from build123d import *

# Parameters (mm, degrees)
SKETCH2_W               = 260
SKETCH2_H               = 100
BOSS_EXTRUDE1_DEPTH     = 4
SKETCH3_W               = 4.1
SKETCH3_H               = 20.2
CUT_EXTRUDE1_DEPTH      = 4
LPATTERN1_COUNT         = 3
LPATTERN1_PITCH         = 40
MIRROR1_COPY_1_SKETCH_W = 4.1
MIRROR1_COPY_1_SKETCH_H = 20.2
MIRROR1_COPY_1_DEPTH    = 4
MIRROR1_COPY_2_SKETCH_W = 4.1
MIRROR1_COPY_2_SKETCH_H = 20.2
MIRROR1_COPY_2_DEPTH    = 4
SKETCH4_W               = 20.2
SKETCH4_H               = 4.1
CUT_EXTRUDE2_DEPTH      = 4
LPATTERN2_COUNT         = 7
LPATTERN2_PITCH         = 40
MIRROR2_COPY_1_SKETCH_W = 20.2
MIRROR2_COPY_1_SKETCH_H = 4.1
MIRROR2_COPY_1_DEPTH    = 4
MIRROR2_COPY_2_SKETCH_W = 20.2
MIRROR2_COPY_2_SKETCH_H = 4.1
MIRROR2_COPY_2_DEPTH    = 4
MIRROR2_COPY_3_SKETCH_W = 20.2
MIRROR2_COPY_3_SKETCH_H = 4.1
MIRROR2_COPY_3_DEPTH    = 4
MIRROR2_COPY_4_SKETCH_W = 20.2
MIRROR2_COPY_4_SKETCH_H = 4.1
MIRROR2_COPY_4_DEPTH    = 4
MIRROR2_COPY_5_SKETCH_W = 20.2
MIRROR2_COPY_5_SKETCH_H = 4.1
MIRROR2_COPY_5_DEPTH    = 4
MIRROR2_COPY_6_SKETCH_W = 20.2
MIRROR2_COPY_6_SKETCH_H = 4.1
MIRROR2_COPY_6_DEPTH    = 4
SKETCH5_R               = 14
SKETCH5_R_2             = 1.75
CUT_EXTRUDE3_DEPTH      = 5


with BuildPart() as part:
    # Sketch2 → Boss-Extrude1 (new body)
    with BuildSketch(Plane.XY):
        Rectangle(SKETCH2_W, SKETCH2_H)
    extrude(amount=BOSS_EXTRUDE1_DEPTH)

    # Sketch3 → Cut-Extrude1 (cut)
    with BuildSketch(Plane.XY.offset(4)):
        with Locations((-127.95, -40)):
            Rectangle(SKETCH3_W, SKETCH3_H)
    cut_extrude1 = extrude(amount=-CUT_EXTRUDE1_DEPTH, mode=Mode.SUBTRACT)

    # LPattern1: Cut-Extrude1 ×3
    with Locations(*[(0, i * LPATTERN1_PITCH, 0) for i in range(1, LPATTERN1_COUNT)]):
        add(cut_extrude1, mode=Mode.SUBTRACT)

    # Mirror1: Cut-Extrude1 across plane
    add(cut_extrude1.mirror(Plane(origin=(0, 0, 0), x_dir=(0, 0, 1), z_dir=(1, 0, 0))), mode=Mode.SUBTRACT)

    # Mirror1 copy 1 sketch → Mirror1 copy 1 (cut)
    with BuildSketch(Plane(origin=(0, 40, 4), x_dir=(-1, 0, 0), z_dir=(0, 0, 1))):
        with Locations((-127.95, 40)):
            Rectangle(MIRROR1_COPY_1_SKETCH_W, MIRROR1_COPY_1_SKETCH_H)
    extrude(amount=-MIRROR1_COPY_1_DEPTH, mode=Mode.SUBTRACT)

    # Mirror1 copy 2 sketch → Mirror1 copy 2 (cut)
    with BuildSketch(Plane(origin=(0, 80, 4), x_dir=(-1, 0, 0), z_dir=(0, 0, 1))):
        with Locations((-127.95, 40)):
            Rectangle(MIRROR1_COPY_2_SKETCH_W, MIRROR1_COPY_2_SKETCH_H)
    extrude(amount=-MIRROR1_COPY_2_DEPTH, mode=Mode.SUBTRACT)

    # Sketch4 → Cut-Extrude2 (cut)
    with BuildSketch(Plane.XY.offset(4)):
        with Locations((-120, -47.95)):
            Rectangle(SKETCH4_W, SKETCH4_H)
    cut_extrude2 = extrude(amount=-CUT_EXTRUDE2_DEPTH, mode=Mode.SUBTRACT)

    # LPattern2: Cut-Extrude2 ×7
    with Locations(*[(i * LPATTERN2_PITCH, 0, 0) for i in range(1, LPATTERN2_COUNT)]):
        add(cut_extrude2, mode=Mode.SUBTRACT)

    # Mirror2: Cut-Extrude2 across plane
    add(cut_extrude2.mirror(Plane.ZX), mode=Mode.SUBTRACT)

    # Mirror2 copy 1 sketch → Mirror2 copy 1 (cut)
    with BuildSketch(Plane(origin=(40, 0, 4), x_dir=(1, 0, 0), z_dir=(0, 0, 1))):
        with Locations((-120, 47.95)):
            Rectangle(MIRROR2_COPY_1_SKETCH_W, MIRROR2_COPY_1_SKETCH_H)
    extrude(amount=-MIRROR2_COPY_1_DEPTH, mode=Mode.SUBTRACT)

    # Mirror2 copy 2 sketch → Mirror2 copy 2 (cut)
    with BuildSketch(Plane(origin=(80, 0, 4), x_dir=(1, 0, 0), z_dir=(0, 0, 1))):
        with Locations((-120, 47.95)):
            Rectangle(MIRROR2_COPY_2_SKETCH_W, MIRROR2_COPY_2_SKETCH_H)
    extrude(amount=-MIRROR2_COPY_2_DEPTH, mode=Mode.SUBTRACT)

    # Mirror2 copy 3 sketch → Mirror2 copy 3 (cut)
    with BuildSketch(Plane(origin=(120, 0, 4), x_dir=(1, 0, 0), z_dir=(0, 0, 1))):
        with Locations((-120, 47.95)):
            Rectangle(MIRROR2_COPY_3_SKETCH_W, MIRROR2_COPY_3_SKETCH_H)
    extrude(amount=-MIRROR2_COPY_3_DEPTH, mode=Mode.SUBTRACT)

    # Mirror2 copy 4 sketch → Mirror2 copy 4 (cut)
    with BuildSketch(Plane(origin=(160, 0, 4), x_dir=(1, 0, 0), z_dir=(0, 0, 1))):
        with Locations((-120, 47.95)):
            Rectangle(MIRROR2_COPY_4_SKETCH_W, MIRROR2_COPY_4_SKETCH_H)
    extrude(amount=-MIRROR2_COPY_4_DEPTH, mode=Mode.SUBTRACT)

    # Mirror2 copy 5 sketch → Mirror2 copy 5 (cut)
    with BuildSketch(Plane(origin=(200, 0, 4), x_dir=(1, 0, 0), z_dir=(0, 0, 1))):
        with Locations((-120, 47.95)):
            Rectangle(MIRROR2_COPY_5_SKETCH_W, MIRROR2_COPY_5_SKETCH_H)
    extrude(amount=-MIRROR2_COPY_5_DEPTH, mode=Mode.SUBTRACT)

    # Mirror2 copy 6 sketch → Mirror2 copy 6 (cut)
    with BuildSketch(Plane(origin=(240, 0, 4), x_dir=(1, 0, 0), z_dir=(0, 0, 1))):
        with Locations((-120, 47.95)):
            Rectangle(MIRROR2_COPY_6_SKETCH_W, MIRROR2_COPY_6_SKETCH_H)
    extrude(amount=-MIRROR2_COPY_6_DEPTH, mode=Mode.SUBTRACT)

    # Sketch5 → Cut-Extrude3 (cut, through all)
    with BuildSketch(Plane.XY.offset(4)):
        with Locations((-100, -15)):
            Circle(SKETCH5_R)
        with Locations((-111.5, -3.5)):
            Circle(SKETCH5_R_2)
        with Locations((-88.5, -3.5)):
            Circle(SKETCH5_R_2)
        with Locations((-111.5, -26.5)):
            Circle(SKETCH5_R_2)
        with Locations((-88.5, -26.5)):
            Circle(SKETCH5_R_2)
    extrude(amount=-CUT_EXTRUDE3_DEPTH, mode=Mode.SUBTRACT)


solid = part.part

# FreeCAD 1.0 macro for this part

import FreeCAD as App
import Part
import Sketcher
Q = App.Units.Quantity


def add_polygon(sketch, points):
    """Adds a closed chain of lines whose ends are joined by coincident constraints."""
    first, n = sketch.GeometryCount, len(points)
    for a, b in zip(points, points[1:] + points[:1]):
        sketch.addGeometry(Part.LineSegment(App.Vector(*a, 0), App.Vector(*b, 0)), False)
    for i in range(n):
        sketch.addConstraint(Sketcher.Constraint("Coincident", first + i, 2, first + (i + 1) % n, 1))

doc = App.newDocument("Part")
body = doc.addObject("PartDesign::Body", "Body")

sketch1 = doc.addObject("Sketcher::SketchObject", "Sketch")
body.addObject(sketch1)
sketch1.AttachmentSupport = (doc.XY_Plane, [""])
sketch1.MapMode = "FlatFace"
add_polygon(sketch1, [(-130, 50), (-130, -50), (130, -50), (130, 50)])
sketch1.addConstraint([
    Sketcher.Constraint("Vertical", 0),
    Sketcher.Constraint("Horizontal", 1),
    Sketcher.Constraint("Vertical", 2),
    Sketcher.Constraint("Horizontal", 3),
    Sketcher.Constraint("Symmetric", 0, 2, 2, 2, -1, 1),
    Sketcher.Constraint("DistanceX", 1, 1, 1, 2, Q("260 mm")),
    Sketcher.Constraint("DistanceY", 0, 2, 0, 1, Q("100 mm")),
])
pad1 = doc.addObject("PartDesign::Pad", "Pad")
body.addObject(pad1)
pad1.Profile = sketch1
pad1.Length = 4

sketch2 = doc.addObject("Sketcher::SketchObject", "Sketch001")
body.addObject(sketch2)
sketch2.AttachmentSupport = (doc.XY_Plane, [""])
sketch2.MapMode = "FlatFace"
sketch2.AttachmentOffset = App.Placement(App.Vector(0, 0, 4), App.Rotation())
add_polygon(sketch2, [(-130, -29.9), (-130, -50.1), (-125.9, -50.1), (-125.9, -29.9)])
sketch2.addConstraint([
    Sketcher.Constraint("Vertical", 0),
    Sketcher.Constraint("Horizontal", 1),
    Sketcher.Constraint("Vertical", 2),
    Sketcher.Constraint("Horizontal", 3),
    Sketcher.Constraint("DistanceX", 1, 1, 1, 2, Q("4.1 mm")),
    Sketcher.Constraint("DistanceY", 0, 2, 0, 1, Q("20.2 mm")),
    Sketcher.Constraint("DistanceX", 0, 2, -1, 1, Q("130 mm")),
    Sketcher.Constraint("DistanceY", 0, 2, -1, 1, Q("50.1 mm")),
])
pocket1 = doc.addObject("PartDesign::Pocket", "Pocket")
body.addObject(pocket1)
pocket1.Profile = sketch2
pocket1.Length = 4
doc.recompute()

linearpattern = doc.addObject("PartDesign::LinearPattern", "LinearPattern")
body.addObject(linearpattern)
linearpattern.Originals = [pocket1]
linearpattern.Direction = (doc.Y_Axis, [""])
linearpattern.Mode = "offset"
linearpattern.Offset = 40
linearpattern.Occurrences = 3
body.Tip = linearpattern
doc.recompute()

mirrored = doc.addObject("PartDesign::Mirrored", "Mirrored")
body.addObject(mirrored)
mirrored.Originals = [pocket1]
mirrored.MirrorPlane = (doc.YZ_Plane, [""])
body.Tip = mirrored

sketch3 = doc.addObject("Sketcher::SketchObject", "Sketch002")
body.addObject(sketch3)
sketch3.AttachmentSupport = (doc.XY_Plane, [""])
sketch3.MapMode = "FlatFace"
sketch3.AttachmentOffset = App.Placement(App.Vector(0, 0, 4), App.Rotation())
add_polygon(sketch3, [(130, -10.1), (130, 10.1), (125.9, 10.1), (125.9, -10.1)])
sketch3.addConstraint([
    Sketcher.Constraint("Vertical", 0),
    Sketcher.Constraint("Horizontal", 1),
    Sketcher.Constraint("Vertical", 2),
    Sketcher.Constraint("Horizontal", 3),
    Sketcher.Constraint("DistanceX", 1, 2, 1, 1, Q("4.1 mm")),
    Sketcher.Constraint("DistanceY", 0, 1, 0, 2, Q("20.2 mm")),
    Sketcher.Constraint("DistanceX", -1, 1, 0, 2, Q("130 mm")),
    Sketcher.Constraint("DistanceY", -1, 1, 0, 2, Q("10.1 mm")),
])
pocket2 = doc.addObject("PartDesign::Pocket", "Pocket001")
body.addObject(pocket2)
pocket2.Profile = sketch3
pocket2.Length = 4

sketch4 = doc.addObject("Sketcher::SketchObject", "Sketch003")
body.addObject(sketch4)
sketch4.AttachmentSupport = (doc.XY_Plane, [""])
sketch4.MapMode = "FlatFace"
sketch4.AttachmentOffset = App.Placement(App.Vector(0, 0, 4), App.Rotation())
add_polygon(sketch4, [(130, 29.9), (130, 50.1), (125.9, 50.1), (125.9, 29.9)])
sketch4.addConstraint([
    Sketcher.Constraint("Vertical", 0),
    Sketcher.Constraint("Horizontal", 1),
    Sketcher.Constraint("Vertical", 2),
    Sketcher.Constraint("Horizontal", 3),
    Sketcher.Constraint("DistanceX", 1, 2, 1, 1, Q("4.1 mm")),
    Sketcher.Constraint("DistanceY", 0, 1, 0, 2, Q("20.2 mm")),
    Sketcher.Constraint("DistanceX", -1, 1, 0, 2, Q("130 mm")),
    Sketcher.Constraint("DistanceY", -1, 1, 0, 2, Q("50.1 mm")),
])
pocket3 = doc.addObject("PartDesign::Pocket", "Pocket002")
body.addObject(pocket3)
pocket3.Profile = sketch4
pocket3.Length = 4

sketch5 = doc.addObject("Sketcher::SketchObject", "Sketch004")
body.addObject(sketch5)
sketch5.AttachmentSupport = (doc.XY_Plane, [""])
sketch5.MapMode = "FlatFace"
sketch5.AttachmentOffset = App.Placement(App.Vector(0, 0, 4), App.Rotation())
add_polygon(sketch5, [(-130.1, -45.9), (-130.1, -50), (-109.9, -50), (-109.9, -45.9)])
sketch5.addConstraint([
    Sketcher.Constraint("Vertical", 0),
    Sketcher.Constraint("Horizontal", 1),
    Sketcher.Constraint("Vertical", 2),
    Sketcher.Constraint("Horizontal", 3),
    Sketcher.Constraint("DistanceX", 1, 1, 1, 2, Q("20.2 mm")),
    Sketcher.Constraint("DistanceY", 0, 2, 0, 1, Q("4.1 mm")),
    Sketcher.Constraint("DistanceY", 0, 2, -1, 1, Q("50 mm")),
    Sketcher.Constraint("DistanceX", 0, 2, -1, 1, Q("130.1 mm")),
])
pocket4 = doc.addObject("PartDesign::Pocket", "Pocket003")
body.addObject(pocket4)
pocket4.Profile = sketch5
pocket4.Length = 4
doc.recompute()

linearpattern2 = doc.addObject("PartDesign::LinearPattern", "LinearPattern001")
body.addObject(linearpattern2)
linearpattern2.Originals = [pocket4]
linearpattern2.Direction = (doc.X_Axis, [""])
linearpattern2.Mode = "offset"
linearpattern2.Offset = 40
linearpattern2.Occurrences = 7
body.Tip = linearpattern2
doc.recompute()

mirrored2 = doc.addObject("PartDesign::Mirrored", "Mirrored001")
body.addObject(mirrored2)
mirrored2.Originals = [pocket4]
mirrored2.MirrorPlane = (doc.XZ_Plane, [""])
body.Tip = mirrored2

sketch6 = doc.addObject("Sketcher::SketchObject", "Sketch005")
body.addObject(sketch6)
sketch6.AttachmentSupport = (doc.XY_Plane, [""])
sketch6.MapMode = "FlatFace"
sketch6.AttachmentOffset = App.Placement(App.Vector(0, 0, 4), App.Rotation())
add_polygon(sketch6, [(-90.1, 50), (-90.1, 45.9), (-69.9, 45.9), (-69.9, 50)])
sketch6.addConstraint([
    Sketcher.Constraint("Vertical", 0),
    Sketcher.Constraint("Horizontal", 1),
    Sketcher.Constraint("Vertical", 2),
    Sketcher.Constraint("Horizontal", 3),
    Sketcher.Constraint("DistanceX", 1, 1, 1, 2, Q("20.2 mm")),
    Sketcher.Constraint("DistanceY", 0, 2, 0, 1, Q("4.1 mm")),
    Sketcher.Constraint("DistanceY", -1, 1, 2, 2, Q("50 mm")),
    Sketcher.Constraint("DistanceX", 0, 2, -1, 1, Q("90.1 mm")),
])
pocket5 = doc.addObject("PartDesign::Pocket", "Pocket004")
body.addObject(pocket5)
pocket5.Profile = sketch6
pocket5.Length = 4

sketch7 = doc.addObject("Sketcher::SketchObject", "Sketch006")
body.addObject(sketch7)
sketch7.AttachmentSupport = (doc.XY_Plane, [""])
sketch7.MapMode = "FlatFace"
sketch7.AttachmentOffset = App.Placement(App.Vector(0, 0, 4), App.Rotation())
add_polygon(sketch7, [(-50.1, 50), (-50.1, 45.9), (-29.9, 45.9), (-29.9, 50)])
sketch7.addConstraint([
    Sketcher.Constraint("Vertical", 0),
    Sketcher.Constraint("Horizontal", 1),
    Sketcher.Constraint("Vertical", 2),
    Sketcher.Constraint("Horizontal", 3),
    Sketcher.Constraint("DistanceX", 1, 1, 1, 2, Q("20.2 mm")),
    Sketcher.Constraint("DistanceY", 0, 2, 0, 1, Q("4.1 mm")),
    Sketcher.Constraint("DistanceY", -1, 1, 2, 2, Q("50 mm")),
    Sketcher.Constraint("DistanceX", 0, 2, -1, 1, Q("50.1 mm")),
])
pocket6 = doc.addObject("PartDesign::Pocket", "Pocket005")
body.addObject(pocket6)
pocket6.Profile = sketch7
pocket6.Length = 4

sketch8 = doc.addObject("Sketcher::SketchObject", "Sketch007")
body.addObject(sketch8)
sketch8.AttachmentSupport = (doc.XY_Plane, [""])
sketch8.MapMode = "FlatFace"
sketch8.AttachmentOffset = App.Placement(App.Vector(0, 0, 4), App.Rotation())
add_polygon(sketch8, [(-10.1, 50), (-10.1, 45.9), (10.1, 45.9), (10.1, 50)])
sketch8.addConstraint([
    Sketcher.Constraint("Vertical", 0),
    Sketcher.Constraint("Horizontal", 1),
    Sketcher.Constraint("Vertical", 2),
    Sketcher.Constraint("Horizontal", 3),
    Sketcher.Constraint("DistanceX", 1, 1, 1, 2, Q("20.2 mm")),
    Sketcher.Constraint("DistanceY", 0, 2, 0, 1, Q("4.1 mm")),
    Sketcher.Constraint("DistanceY", -1, 1, 2, 2, Q("50 mm")),
    Sketcher.Constraint("DistanceX", 0, 2, -1, 1, Q("10.1 mm")),
])
pocket7 = doc.addObject("PartDesign::Pocket", "Pocket006")
body.addObject(pocket7)
pocket7.Profile = sketch8
pocket7.Length = 4

sketch9 = doc.addObject("Sketcher::SketchObject", "Sketch008")
body.addObject(sketch9)
sketch9.AttachmentSupport = (doc.XY_Plane, [""])
sketch9.MapMode = "FlatFace"
sketch9.AttachmentOffset = App.Placement(App.Vector(0, 0, 4), App.Rotation())
add_polygon(sketch9, [(29.9, 50), (29.9, 45.9), (50.1, 45.9), (50.1, 50)])
sketch9.addConstraint([
    Sketcher.Constraint("Vertical", 0),
    Sketcher.Constraint("Horizontal", 1),
    Sketcher.Constraint("Vertical", 2),
    Sketcher.Constraint("Horizontal", 3),
    Sketcher.Constraint("DistanceX", 1, 1, 1, 2, Q("20.2 mm")),
    Sketcher.Constraint("DistanceY", 0, 2, 0, 1, Q("4.1 mm")),
    Sketcher.Constraint("DistanceY", -1, 1, 2, 2, Q("50 mm")),
    Sketcher.Constraint("DistanceX", -1, 1, 0, 2, Q("29.9 mm")),
])
pocket8 = doc.addObject("PartDesign::Pocket", "Pocket007")
body.addObject(pocket8)
pocket8.Profile = sketch9
pocket8.Length = 4

sketch10 = doc.addObject("Sketcher::SketchObject", "Sketch009")
body.addObject(sketch10)
sketch10.AttachmentSupport = (doc.XY_Plane, [""])
sketch10.MapMode = "FlatFace"
sketch10.AttachmentOffset = App.Placement(App.Vector(0, 0, 4), App.Rotation())
add_polygon(sketch10, [(69.9, 50), (69.9, 45.9), (90.1, 45.9), (90.1, 50)])
sketch10.addConstraint([
    Sketcher.Constraint("Vertical", 0),
    Sketcher.Constraint("Horizontal", 1),
    Sketcher.Constraint("Vertical", 2),
    Sketcher.Constraint("Horizontal", 3),
    Sketcher.Constraint("DistanceX", 1, 1, 1, 2, Q("20.2 mm")),
    Sketcher.Constraint("DistanceY", 0, 2, 0, 1, Q("4.1 mm")),
    Sketcher.Constraint("DistanceY", -1, 1, 2, 2, Q("50 mm")),
    Sketcher.Constraint("DistanceX", -1, 1, 0, 2, Q("69.9 mm")),
])
pocket9 = doc.addObject("PartDesign::Pocket", "Pocket008")
body.addObject(pocket9)
pocket9.Profile = sketch10
pocket9.Length = 4

sketch11 = doc.addObject("Sketcher::SketchObject", "Sketch010")
body.addObject(sketch11)
sketch11.AttachmentSupport = (doc.XY_Plane, [""])
sketch11.MapMode = "FlatFace"
sketch11.AttachmentOffset = App.Placement(App.Vector(0, 0, 4), App.Rotation())
add_polygon(sketch11, [(109.9, 50), (109.9, 45.9), (130.1, 45.9), (130.1, 50)])
sketch11.addConstraint([
    Sketcher.Constraint("Vertical", 0),
    Sketcher.Constraint("Horizontal", 1),
    Sketcher.Constraint("Vertical", 2),
    Sketcher.Constraint("Horizontal", 3),
    Sketcher.Constraint("DistanceX", 1, 1, 1, 2, Q("20.2 mm")),
    Sketcher.Constraint("DistanceY", 0, 2, 0, 1, Q("4.1 mm")),
    Sketcher.Constraint("DistanceY", -1, 1, 2, 2, Q("50 mm")),
    Sketcher.Constraint("DistanceX", -1, 1, 0, 2, Q("109.9 mm")),
])
pocket10 = doc.addObject("PartDesign::Pocket", "Pocket009")
body.addObject(pocket10)
pocket10.Profile = sketch11
pocket10.Length = 4

sketch12 = doc.addObject("Sketcher::SketchObject", "Sketch011")
body.addObject(sketch12)
sketch12.AttachmentSupport = (doc.XY_Plane, [""])
sketch12.MapMode = "FlatFace"
sketch12.AttachmentOffset = App.Placement(App.Vector(0, 0, 4), App.Rotation())
sketch12.addGeometry([
    Part.Circle(App.Vector(-100, -15, 0), App.Vector(0, 0, 1), 14),
    Part.Circle(App.Vector(-111.5, -3.5, 0), App.Vector(0, 0, 1), 1.8),
    Part.Circle(App.Vector(-88.5, -3.5, 0), App.Vector(0, 0, 1), 1.8),
    Part.Circle(App.Vector(-111.5, -26.5, 0), App.Vector(0, 0, 1), 1.8),
    Part.Circle(App.Vector(-88.5, -26.5, 0), App.Vector(0, 0, 1), 1.8),
], False)
sketch12.addConstraint([
    Sketcher.Constraint("Equal", 1, 2),
    Sketcher.Constraint("Equal", 2, 3),
    Sketcher.Constraint("Equal", 3, 4),
    Sketcher.Constraint("Horizontal", 1, 3, 2, 3),
    Sketcher.Constraint("Horizontal", 3, 3, 4, 3),
    Sketcher.Constraint("Vertical", 1, 3, 3, 3),
    Sketcher.Constraint("Vertical", 2, 3, 4, 3),
    Sketcher.Constraint("Diameter", 0, Q("28 mm")),
    Sketcher.Constraint("Diameter", 1, Q("3.5 mm")),
    Sketcher.Constraint("DistanceX", 0, 3, -1, 1, Q("100 mm")),
    Sketcher.Constraint("DistanceY", 0, 3, -1, 1, Q("15 mm")),
    Sketcher.Constraint("DistanceX", 1, 3, 2, 3, Q("23 mm")),
    Sketcher.Constraint("DistanceY", 3, 3, 1, 3, Q("23 mm")),
    Sketcher.Constraint("DistanceX", 1, 3, -1, 1, Q("111.5 mm")),
    Sketcher.Constraint("DistanceY", 1, 3, -1, 1, Q("3.5 mm")),
])
pocket11 = doc.addObject("PartDesign::Pocket", "Pocket010")
body.addObject(pocket11)
pocket11.Profile = sketch12
pocket11.Type = "ThroughAll"

doc.recompute()
